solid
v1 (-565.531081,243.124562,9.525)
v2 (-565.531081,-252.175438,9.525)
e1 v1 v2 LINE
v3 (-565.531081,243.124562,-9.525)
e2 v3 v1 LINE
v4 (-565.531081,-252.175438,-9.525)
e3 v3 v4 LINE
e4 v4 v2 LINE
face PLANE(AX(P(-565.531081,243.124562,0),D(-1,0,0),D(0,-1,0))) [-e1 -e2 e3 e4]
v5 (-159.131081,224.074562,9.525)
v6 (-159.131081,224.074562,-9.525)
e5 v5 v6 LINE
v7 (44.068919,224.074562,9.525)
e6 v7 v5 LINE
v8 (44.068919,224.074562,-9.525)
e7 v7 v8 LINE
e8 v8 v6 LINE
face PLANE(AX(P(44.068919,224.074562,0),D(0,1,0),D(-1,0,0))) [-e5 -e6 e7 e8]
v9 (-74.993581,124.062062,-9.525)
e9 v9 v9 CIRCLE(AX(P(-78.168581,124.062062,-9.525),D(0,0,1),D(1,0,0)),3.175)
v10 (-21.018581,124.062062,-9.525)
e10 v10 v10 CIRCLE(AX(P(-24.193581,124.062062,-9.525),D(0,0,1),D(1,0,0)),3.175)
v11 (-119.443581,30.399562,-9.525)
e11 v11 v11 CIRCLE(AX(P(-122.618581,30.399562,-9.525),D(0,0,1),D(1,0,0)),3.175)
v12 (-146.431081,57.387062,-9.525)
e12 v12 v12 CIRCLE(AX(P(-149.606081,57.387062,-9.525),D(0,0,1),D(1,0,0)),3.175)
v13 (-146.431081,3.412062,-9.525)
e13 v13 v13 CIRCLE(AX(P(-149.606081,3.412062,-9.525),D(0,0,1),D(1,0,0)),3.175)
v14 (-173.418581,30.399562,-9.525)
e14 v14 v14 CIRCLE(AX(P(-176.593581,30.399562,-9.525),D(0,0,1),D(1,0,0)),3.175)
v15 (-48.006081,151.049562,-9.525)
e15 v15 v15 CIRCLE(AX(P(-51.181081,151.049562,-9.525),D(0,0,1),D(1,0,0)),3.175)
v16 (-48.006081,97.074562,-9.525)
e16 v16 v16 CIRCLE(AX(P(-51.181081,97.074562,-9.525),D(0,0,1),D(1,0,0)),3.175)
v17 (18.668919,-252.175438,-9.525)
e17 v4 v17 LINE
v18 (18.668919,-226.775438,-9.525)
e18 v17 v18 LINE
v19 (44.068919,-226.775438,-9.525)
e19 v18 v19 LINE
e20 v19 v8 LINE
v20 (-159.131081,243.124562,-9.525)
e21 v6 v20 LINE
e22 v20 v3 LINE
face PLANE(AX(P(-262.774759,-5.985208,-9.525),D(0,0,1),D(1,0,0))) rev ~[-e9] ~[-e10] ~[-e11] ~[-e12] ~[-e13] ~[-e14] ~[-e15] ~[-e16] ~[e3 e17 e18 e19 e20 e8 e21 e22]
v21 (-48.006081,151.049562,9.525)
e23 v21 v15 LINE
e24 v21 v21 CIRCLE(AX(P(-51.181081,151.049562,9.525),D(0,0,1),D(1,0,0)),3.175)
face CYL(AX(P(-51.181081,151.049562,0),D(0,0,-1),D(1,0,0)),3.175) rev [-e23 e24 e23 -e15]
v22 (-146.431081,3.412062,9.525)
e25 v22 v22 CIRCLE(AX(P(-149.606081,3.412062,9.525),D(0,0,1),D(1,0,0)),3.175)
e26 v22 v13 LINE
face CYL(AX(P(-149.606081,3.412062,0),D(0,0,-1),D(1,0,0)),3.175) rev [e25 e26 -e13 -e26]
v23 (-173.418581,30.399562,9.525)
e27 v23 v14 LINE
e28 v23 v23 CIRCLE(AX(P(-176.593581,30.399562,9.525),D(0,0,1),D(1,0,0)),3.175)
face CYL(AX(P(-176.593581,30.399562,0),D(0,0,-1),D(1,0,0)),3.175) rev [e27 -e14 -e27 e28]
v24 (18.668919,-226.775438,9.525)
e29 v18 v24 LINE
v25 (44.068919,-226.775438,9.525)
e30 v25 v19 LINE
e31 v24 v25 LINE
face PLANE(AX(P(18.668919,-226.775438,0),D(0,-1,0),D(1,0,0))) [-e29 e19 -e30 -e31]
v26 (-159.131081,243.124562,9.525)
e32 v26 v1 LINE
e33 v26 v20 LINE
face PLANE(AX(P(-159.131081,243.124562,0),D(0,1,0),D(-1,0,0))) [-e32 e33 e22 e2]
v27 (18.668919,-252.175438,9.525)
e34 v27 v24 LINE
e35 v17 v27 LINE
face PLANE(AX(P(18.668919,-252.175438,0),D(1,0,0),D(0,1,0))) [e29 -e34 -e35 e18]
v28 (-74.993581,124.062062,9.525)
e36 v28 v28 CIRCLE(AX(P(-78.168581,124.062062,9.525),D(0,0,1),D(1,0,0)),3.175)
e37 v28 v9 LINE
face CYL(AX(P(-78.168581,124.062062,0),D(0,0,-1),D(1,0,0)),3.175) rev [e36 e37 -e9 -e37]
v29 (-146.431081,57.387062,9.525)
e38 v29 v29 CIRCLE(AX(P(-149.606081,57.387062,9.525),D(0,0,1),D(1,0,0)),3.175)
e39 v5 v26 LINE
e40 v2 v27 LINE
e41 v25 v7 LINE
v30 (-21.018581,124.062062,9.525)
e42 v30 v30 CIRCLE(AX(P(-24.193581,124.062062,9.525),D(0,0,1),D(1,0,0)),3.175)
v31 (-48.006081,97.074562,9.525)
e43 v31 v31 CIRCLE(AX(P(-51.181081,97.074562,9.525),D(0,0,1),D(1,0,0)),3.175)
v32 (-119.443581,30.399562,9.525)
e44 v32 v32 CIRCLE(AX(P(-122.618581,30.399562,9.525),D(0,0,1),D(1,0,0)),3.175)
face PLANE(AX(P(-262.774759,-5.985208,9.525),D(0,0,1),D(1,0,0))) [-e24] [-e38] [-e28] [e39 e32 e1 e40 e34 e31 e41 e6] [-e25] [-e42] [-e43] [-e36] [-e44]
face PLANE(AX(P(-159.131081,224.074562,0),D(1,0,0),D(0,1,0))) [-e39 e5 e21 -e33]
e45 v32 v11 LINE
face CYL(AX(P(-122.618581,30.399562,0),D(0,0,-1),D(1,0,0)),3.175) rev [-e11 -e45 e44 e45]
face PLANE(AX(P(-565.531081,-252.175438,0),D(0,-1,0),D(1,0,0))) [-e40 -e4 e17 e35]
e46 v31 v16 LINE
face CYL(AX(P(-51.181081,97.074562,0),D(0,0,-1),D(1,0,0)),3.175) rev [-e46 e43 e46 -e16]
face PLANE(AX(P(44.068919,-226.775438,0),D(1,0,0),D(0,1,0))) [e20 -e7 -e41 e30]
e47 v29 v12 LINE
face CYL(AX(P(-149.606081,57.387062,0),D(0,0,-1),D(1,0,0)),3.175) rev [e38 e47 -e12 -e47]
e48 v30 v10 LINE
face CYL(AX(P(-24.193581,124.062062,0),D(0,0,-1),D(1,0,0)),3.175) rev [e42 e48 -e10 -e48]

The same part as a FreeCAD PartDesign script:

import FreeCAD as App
import Part
import Sketcher
Q = App.Units.Quantity

doc = App.newDocument("Part")
body = doc.addObject("PartDesign::Body", "Body")

sketch1 = doc.addObject("Sketcher::SketchObject", "Sketch")
body.addObject(sketch1)
sketch1.AttachmentSupport = (doc.XY_Plane, [""])
sketch1.MapMode = "FlatFace"
sketch1.addGeometry(Part.LineSegment(App.Vector(-159.131081, 243.124562, 0), App.Vector(-565.531081, 243.124562, 0)), False)
sketch1.addGeometry(Part.LineSegment(App.Vector(-565.531081, 243.124562, 0), App.Vector(-565.531081, -252.175438, 0)), False)
sketch1.addGeometry(Part.LineSegment(App.Vector(-565.531081, -252.175438, 0), App.Vector(18.668919, -252.175438, 0)), False)
sketch1.addGeometry(Part.LineSegment(App.Vector(18.668919, -252.175438, 0), App.Vector(18.668919, -226.775438, 0)), False)
sketch1.addGeometry(Part.LineSegment(App.Vector(18.668919, -226.775438, 0), App.Vector(44.068919, -226.775438, 0)), False)
sketch1.addGeometry(Part.LineSegment(App.Vector(44.068919, -226.775438, 0), App.Vector(44.068919, 224.074562, 0)), False)
sketch1.addGeometry(Part.LineSegment(App.Vector(44.068919, 224.074562, 0), App.Vector(-159.131081, 224.074562, 0)), False)
sketch1.addGeometry(Part.LineSegment(App.Vector(-159.131081, 224.074562, 0), App.Vector(-159.131081, 243.124562, 0)), False)
sketch1.addGeometry(Part.Circle(App.Vector(-149.606081, 3.412062, 0), App.Vector(0, 0, 1), 3.175), False)
sketch1.addGeometry(Part.Circle(App.Vector(-176.593581, 30.399562, 0), App.Vector(0, 0, 1), 3.175), False)
sketch1.addGeometry(Part.Circle(App.Vector(-122.618581, 30.399562, 0), App.Vector(0, 0, 1), 3.175), False)
sketch1.addGeometry(Part.Circle(App.Vector(-149.606081, 57.387062, 0), App.Vector(0, 0, 1), 3.175), False)
sketch1.addGeometry(Part.Circle(App.Vector(-51.181081, 97.074562, 0), App.Vector(0, 0, 1), 3.175), False)
sketch1.addGeometry(Part.Circle(App.Vector(-78.168581, 124.062062, 0), App.Vector(0, 0, 1), 3.175), False)
sketch1.addGeometry(Part.Circle(App.Vector(-24.193581, 124.062062, 0), App.Vector(0, 0, 1), 3.175), False)
sketch1.addGeometry(Part.Circle(App.Vector(-51.181081, 151.049562, 0), App.Vector(0, 0, 1), 3.175), False)
sketch1.addConstraint(Sketcher.Constraint("Coincident", 0, 2, 1, 1))
sketch1.addConstraint(Sketcher.Constraint("Coincident", 1, 2, 2, 1))
sketch1.addConstraint(Sketcher.Constraint("Coincident", 2, 2, 3, 1))
sketch1.addConstraint(Sketcher.Constraint("Coincident", 3, 2, 4, 1))
sketch1.addConstraint(Sketcher.Constraint("Coincident", 4, 2, 5, 1))
sketch1.addConstraint(Sketcher.Constraint("Coincident", 5, 2, 6, 1))
sketch1.addConstraint(Sketcher.Constraint("Coincident", 6, 2, 7, 1))
sketch1.addConstraint(Sketcher.Constraint("Coincident", 7, 2, 0, 1))
sketch1.addConstraint(Sketcher.Constraint("Horizontal", 0))
sketch1.addConstraint(Sketcher.Constraint("Vertical", 1))
sketch1.addConstraint(Sketcher.Constraint("Horizontal", 2))
sketch1.addConstraint(Sketcher.Constraint("Vertical", 3))
sketch1.addConstraint(Sketcher.Constraint("Horizontal", 4))
sketch1.addConstraint(Sketcher.Constraint("Vertical", 5))
sketch1.addConstraint(Sketcher.Constraint("Horizontal", 6))
sketch1.addConstraint(Sketcher.Constraint("Vertical", 7))
sketch1.addConstraint(Sketcher.Constraint("Equal", 8, 9))
sketch1.addConstraint(Sketcher.Constraint("Equal", 9, 10))
sketch1.addConstraint(Sketcher.Constraint("Equal", 10, 11))
sketch1.addConstraint(Sketcher.Constraint("Equal", 11, 12))
sketch1.addConstraint(Sketcher.Constraint("Equal", 12, 13))
sketch1.addConstraint(Sketcher.Constraint("Equal", 13, 14))
sketch1.addConstraint(Sketcher.Constraint("Equal", 14, 15))
sketch1.addConstraint(Sketcher.Constraint("Horizontal", 9, 3, 10, 3))
sketch1.addConstraint(Sketcher.Constraint("Horizontal", 13, 3, 14, 3))
sketch1.addConstraint(Sketcher.Constraint("Vertical", 8, 3, 11, 3))
sketch1.addConstraint(Sketcher.Constraint("Vertical", 12, 3, 15, 3))
sketch1.addConstraint(Sketcher.Constraint("Equal", 4, 3))
sketch1.addConstraint(Sketcher.Constraint("Diameter", 8, Q("0.25 in")))
sketch1.addConstraint(Sketcher.Constraint("DistanceX", 0, 2, 0, 1, Q("16 in")))
sketch1.addConstraint(Sketcher.Constraint("DistanceX", 2, 1, 2, 2, Q("23 in")))
sketch1.addConstraint(Sketcher.Constraint("DistanceX", 4, 1, 4, 2, Q("1 in")))
sketch1.addConstraint(Sketcher.Constraint("DistanceY", 1, 2, 1, 1, Q("19.5 in")))
sketch1.addConstraint(Sketcher.Constraint("DistanceY", 12, 3, 5, 2, Q("5 in")))
sketch1.addConstraint(Sketcher.Constraint("DistanceY", 5, 1, 5, 2, Q("17.75 in")))
sketch1.addConstraint(Sketcher.Constraint("DistanceX", 10, 3, 13, 3, Q("1.75 in")))
sketch1.addConstraint(Sketcher.Constraint("DistanceY", 8, 3, 13, 3, Q("4.75 in")))
sketch1.addConstraint(Sketcher.Constraint("DistanceY", 10, 3, 15, 3, Q("4.75 in")))
sketch1.addConstraint(Sketcher.Constraint("DistanceX", 12, 3, 2, 2, Q("2.75 in")))
sketch1.addConstraint(Sketcher.Constraint("DistanceX", 9, 3, 8, 3, Q("1.0625 in")))
sketch1.addConstraint(Sketcher.Constraint("DistanceY", 8, 3, 9, 3, Q("1.0625 in")))
sketch1.addConstraint(Sketcher.Constraint("DistanceX", 8, 3, 10, 3, Q("1.0625 in")))
sketch1.addConstraint(Sketcher.Constraint("DistanceY", 10, 3, 11, 3, Q("1.0625 in")))
sketch1.addConstraint(Sketcher.Constraint("DistanceX", 10, 3, 12, 3, Q("2.8125 in")))
sketch1.addConstraint(Sketcher.Constraint("DistanceY", 10, 3, 12, 3, Q("2.625 in")))
sketch1.addConstraint(Sketcher.Constraint("DistanceX", 12, 3, 14, 3, Q("1.0625 in")))
sketch1.addConstraint(Sketcher.Constraint("DistanceX", 8, 3, -1, 1, 149.606081))
sketch1.addConstraint(Sketcher.Constraint("DistanceY", -1, 1, 9, 3, 30.399562))
pad1 = doc.addObject("PartDesign::Pad", "Pad")
body.addObject(pad1)
pad1.Profile = sketch1
pad1.Length = Q("0.75 in")
pad1.Midplane = True

doc.recompute()
